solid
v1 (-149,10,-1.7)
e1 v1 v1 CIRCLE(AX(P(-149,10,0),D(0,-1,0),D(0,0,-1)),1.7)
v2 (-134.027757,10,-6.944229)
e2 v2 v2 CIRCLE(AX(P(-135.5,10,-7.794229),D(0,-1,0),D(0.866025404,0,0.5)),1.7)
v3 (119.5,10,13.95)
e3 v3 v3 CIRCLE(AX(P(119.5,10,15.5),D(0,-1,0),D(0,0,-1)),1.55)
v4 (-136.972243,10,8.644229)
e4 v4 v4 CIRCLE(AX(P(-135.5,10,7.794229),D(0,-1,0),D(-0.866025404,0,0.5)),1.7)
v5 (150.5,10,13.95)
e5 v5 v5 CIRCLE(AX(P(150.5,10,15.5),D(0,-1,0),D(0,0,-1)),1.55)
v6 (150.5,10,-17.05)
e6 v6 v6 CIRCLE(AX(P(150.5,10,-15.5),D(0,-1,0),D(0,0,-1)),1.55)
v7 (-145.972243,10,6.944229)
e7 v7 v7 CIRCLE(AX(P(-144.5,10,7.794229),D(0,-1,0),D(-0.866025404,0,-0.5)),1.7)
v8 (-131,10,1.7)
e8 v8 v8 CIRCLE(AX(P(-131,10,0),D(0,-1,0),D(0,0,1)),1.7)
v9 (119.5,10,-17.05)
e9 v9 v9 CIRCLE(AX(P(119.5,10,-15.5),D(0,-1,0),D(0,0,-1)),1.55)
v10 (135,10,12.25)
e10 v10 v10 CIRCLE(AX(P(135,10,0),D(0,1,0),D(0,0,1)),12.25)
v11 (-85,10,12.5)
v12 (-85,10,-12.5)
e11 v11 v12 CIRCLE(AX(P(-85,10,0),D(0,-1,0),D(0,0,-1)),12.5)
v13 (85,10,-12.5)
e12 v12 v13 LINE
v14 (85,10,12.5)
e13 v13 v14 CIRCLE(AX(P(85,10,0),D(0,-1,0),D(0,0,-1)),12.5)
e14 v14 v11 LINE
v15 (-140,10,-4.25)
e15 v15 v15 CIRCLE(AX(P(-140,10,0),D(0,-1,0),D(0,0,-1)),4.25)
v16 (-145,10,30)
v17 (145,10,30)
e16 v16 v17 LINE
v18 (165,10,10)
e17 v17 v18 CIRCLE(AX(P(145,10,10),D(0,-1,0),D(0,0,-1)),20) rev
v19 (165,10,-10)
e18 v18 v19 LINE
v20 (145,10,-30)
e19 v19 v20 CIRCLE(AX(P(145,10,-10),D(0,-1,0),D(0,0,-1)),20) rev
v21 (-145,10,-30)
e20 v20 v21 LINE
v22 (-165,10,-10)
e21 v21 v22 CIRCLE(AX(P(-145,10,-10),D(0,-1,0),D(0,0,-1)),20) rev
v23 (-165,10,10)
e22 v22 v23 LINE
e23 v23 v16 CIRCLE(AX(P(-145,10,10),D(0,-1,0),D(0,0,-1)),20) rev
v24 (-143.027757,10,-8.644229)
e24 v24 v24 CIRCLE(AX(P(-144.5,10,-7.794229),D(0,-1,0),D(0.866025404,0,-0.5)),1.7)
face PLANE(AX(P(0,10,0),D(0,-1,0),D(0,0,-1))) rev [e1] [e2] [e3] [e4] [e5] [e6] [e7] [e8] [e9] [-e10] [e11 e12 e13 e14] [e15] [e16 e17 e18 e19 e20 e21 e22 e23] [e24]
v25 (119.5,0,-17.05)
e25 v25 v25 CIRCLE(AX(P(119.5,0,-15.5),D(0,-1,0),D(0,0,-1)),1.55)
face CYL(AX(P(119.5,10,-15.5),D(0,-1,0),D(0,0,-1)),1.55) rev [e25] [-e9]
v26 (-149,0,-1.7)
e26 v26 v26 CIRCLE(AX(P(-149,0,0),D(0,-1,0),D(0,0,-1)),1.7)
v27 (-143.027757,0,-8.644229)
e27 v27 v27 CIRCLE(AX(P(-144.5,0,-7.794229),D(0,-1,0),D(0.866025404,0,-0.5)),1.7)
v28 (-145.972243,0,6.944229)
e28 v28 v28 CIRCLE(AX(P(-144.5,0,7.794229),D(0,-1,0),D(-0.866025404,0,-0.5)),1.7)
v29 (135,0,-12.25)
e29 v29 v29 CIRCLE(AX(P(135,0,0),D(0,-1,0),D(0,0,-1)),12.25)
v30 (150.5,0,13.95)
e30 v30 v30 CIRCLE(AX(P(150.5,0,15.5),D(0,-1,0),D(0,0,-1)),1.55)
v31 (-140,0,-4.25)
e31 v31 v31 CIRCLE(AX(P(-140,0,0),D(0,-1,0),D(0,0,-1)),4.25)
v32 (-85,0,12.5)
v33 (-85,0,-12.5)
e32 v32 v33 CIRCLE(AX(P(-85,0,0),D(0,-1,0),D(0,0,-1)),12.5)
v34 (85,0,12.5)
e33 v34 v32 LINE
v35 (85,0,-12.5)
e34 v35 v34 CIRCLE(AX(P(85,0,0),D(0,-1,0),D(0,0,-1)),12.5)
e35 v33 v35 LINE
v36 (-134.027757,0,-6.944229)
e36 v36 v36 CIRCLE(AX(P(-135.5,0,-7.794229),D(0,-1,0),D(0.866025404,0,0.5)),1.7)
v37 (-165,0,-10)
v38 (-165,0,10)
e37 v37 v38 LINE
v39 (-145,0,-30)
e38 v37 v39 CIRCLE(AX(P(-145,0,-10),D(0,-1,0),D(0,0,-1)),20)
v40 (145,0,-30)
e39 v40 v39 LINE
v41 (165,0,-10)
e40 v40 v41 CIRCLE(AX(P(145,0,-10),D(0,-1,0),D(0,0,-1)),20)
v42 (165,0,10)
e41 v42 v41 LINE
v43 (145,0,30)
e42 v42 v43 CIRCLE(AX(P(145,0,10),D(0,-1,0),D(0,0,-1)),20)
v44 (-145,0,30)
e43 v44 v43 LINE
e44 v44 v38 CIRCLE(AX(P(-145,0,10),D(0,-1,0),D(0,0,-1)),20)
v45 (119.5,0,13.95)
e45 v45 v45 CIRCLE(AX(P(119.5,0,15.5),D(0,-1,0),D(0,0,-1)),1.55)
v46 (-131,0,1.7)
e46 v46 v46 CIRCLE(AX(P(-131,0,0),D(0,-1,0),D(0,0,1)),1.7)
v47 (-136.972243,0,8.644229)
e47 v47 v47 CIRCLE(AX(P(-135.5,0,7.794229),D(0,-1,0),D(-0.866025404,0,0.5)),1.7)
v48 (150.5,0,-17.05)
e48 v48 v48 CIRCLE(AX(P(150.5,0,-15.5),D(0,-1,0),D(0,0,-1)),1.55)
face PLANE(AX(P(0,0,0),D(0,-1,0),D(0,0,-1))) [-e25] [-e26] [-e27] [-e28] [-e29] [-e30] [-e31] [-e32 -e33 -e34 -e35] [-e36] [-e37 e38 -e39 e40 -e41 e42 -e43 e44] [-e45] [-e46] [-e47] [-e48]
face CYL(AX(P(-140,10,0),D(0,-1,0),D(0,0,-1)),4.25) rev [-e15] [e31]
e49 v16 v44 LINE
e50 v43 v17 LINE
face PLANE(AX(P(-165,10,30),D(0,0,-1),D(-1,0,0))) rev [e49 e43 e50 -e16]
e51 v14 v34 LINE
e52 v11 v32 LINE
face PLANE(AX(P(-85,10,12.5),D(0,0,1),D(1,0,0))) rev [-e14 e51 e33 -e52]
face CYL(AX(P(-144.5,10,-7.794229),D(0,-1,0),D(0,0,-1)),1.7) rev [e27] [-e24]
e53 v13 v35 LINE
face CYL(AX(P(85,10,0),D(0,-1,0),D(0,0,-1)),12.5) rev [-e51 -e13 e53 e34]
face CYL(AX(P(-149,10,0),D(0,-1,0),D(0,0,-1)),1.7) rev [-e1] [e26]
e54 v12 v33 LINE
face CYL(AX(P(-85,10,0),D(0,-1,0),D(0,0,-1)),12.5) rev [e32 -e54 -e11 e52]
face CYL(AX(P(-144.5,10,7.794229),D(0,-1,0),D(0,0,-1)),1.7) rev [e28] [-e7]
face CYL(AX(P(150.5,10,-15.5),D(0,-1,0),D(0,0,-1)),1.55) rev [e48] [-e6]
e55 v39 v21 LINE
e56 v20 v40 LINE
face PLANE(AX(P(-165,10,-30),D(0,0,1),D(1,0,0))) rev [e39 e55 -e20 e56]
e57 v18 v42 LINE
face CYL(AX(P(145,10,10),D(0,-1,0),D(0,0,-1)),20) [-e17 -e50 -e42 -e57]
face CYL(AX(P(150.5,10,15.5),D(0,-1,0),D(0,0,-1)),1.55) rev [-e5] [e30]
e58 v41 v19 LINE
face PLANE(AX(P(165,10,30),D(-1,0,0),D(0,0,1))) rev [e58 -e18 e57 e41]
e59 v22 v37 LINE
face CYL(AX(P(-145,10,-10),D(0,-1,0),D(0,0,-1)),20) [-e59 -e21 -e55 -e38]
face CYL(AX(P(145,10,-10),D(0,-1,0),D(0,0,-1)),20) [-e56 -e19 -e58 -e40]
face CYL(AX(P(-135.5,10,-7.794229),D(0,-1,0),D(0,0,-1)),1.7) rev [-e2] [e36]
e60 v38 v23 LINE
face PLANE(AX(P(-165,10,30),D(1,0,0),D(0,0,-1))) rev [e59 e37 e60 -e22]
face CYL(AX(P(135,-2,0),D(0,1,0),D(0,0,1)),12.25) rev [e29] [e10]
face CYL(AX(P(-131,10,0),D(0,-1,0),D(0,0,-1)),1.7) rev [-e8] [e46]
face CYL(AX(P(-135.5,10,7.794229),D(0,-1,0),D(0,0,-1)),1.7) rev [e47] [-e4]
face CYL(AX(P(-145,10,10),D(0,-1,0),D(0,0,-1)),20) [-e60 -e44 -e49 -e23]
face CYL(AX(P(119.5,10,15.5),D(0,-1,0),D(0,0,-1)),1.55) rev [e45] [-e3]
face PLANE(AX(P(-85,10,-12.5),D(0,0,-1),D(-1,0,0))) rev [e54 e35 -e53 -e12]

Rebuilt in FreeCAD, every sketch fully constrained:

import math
import FreeCAD as App
import Part
import Sketcher
from FreeCAD import Vector
Q = App.Units.Quantity


def edges_at(feature, points):
    """Names of the edges that pass closest to the given points."""
    edges = feature.Shape.Edges
    near = lambda p: min(range(len(edges)), key=lambda i: edges[i].distToShape(Part.Vertex(*p))[0])
    return sorted({f"Edge{near(p) + 1}" for p in points})


def add_polygon(sketch, points):
    """Adds a closed chain of lines whose ends are joined by coincident constraints."""
    first, n = sketch.GeometryCount, len(points)
    for a, b in zip(points, points[1:] + points[:1]):
        sketch.addGeometry(Part.LineSegment(App.Vector(*a, 0), App.Vector(*b, 0)), False)
    for i in range(n):
        sketch.addConstraint(Sketcher.Constraint("Coincident", first + i, 2, first + (i + 1) % n, 1))

doc = App.newDocument("Part")
params = doc.addObject("Spreadsheet::Sheet", "Params")
for row, (alias, value) in enumerate([
    ("sketch1_width", "330 mm"),
    ("sketch1_height", "60 mm"),
    ("pad1_length", "10 mm"),
    ("fillet_radius", "20 mm"),
    ("sketch2_diameter", "24.5 mm"),
    ("pocket1_length", "12 mm"),
    ("sketch3_diameter", "3.1 mm"),
    ("sketch4_diameter", "8.5 mm"),
    ("sketch5_radius", "12.5 mm"),
    ("sketch5_width", "170 mm"),
    ("sketch6_diameter", "3.4 mm"),
], start=1):
    params.set(f"A{row}", alias)
    params.set(f"B{row}", "=" + value)
    params.setAlias(f"B{row}", alias)

body = doc.addObject("PartDesign::Body", "Body")

# Sketch on XZ plane
sketch1 = body.newObject("Sketcher::SketchObject", "Sketch")
sketch1.AttachmentSupport = (doc.getObject("XZ_Plane"), [""])
sketch1.MapMode = "FlatFace"
add_polygon(sketch1, [(-165, -30), (-165, 30), (165, 30), (165, -30)])  # lines 0-3
sketch1.addConstraint([
    Sketcher.Constraint("Vertical", 0),
    Sketcher.Constraint("Horizontal", 1),
    Sketcher.Constraint("Vertical", 2),
    Sketcher.Constraint("Horizontal", 3),
    Sketcher.Constraint("Symmetric", 0, 2, 2, 2, -1, 1),
    Sketcher.Constraint("DistanceX", 1, 1, 1, 2, Q("330 mm")),
    Sketcher.Constraint("DistanceY", 0, 1, 0, 2, Q("60 mm")),
])
sketch1.setExpression("Constraints[9]", "Params.sketch1_width")
sketch1.setExpression("Constraints[10]", "Params.sketch1_height")
pad1 = body.newObject("PartDesign::Pad", "Pad")
pad1.Profile = sketch1
pad1.setExpression("Length", "Params.pad1_length")
pad1.Reversed = True
doc.recompute()

fillet = body.newObject("PartDesign::Fillet", "Fillet")
fillet.Base = (pad1, edges_at(pad1, [
    (165, 5, 30),
    (-165, 5, 30),
    (-165, 5, -30),
    (165, 5, -30),
]))
fillet.setExpression("Radius", "Params.fillet_radius")

# Sketch on XZ plane
sketch2 = body.newObject("Sketcher::SketchObject", "Sketch001")
sketch2.AttachmentSupport = (doc.getObject("XZ_Plane"), [""])
sketch2.MapMode = "FlatFace"
sketch2.AttachmentOffset = App.Placement(Vector(0, 0, -10), App.Rotation())
sketch2.addGeometry(Part.Circle(Vector(135, 0, 0), Vector(0, 0, 1), 12), False)
sketch2.addConstraint([
    Sketcher.Constraint("PointOnObject", 0, 3, -1),
    Sketcher.Constraint("Diameter", 0, Q("24.5 mm")),
    Sketcher.Constraint("DistanceX", -1, 1, 0, 3, Q("135 mm")),
])
sketch2.setExpression("Constraints[1]", "Params.sketch2_diameter")
pocket1 = body.newObject("PartDesign::Pocket", "Pocket")
pocket1.Profile = sketch2
pocket1.setExpression("Length", "Params.pocket1_length")
pocket1.Reversed = True

# Sketch on XZ plane
sketch3 = body.newObject("Sketcher::SketchObject", "Sketch002")
sketch3.AttachmentSupport = (doc.getObject("XZ_Plane"), [""])
sketch3.MapMode = "FlatFace"
sketch3.addGeometry([
    Part.Circle(Vector(119.5, 15.5, 0), Vector(0, 0, 1), 1.6),
    Part.Circle(Vector(150.5, 15.5, 0), Vector(0, 0, 1), 1.6),
    Part.Circle(Vector(150.5, -15.5, 0), Vector(0, 0, 1), 1.6),
    Part.Circle(Vector(119.5, -15.5, 0), Vector(0, 0, 1), 1.6),
], False)
sketch3.addConstraint([
    Sketcher.Constraint("Equal", 0, 1),
    Sketcher.Constraint("Equal", 1, 2),
    Sketcher.Constraint("Equal", 2, 3),
    Sketcher.Constraint("Symmetric", 1, 3, 2, 3, -1),
    Sketcher.Constraint("Symmetric", 0, 3, 3, 3, -1),
    Sketcher.Constraint("Horizontal", 0, 3, 1, 3),
    Sketcher.Constraint("Diameter", 0, Q("3.1 mm")),
    Sketcher.Constraint("DistanceX", 0, 3, 1, 3, Q("31 mm")),
    Sketcher.Constraint("DistanceY", 2, 3, 1, 3, Q("31 mm")),
    Sketcher.Constraint("DistanceX", -1, 1, 0, 3, Q("119.5 mm")),
])
sketch3.setExpression("Constraints[6]", "Params.sketch3_diameter")
pocket2 = body.newObject("PartDesign::Pocket", "Pocket001")
pocket2.Profile = sketch3
pocket2.Type = "ThroughAll"

# Sketch on XZ plane
sketch4 = body.newObject("Sketcher::SketchObject", "Sketch003")
sketch4.AttachmentSupport = (doc.getObject("XZ_Plane"), [""])
sketch4.MapMode = "FlatFace"
sketch4.addGeometry(Part.Circle(Vector(-140, 0, 0), Vector(0, 0, 1), 4.2), False)
sketch4.addConstraint([
    Sketcher.Constraint("PointOnObject", 0, 3, -1),
    Sketcher.Constraint("Diameter", 0, Q("8.5 mm")),
    Sketcher.Constraint("DistanceX", 0, 3, -1, 1, Q("140 mm")),
])
sketch4.setExpression("Constraints[1]", "Params.sketch4_diameter")
pocket3 = body.newObject("PartDesign::Pocket", "Pocket002")
pocket3.Profile = sketch4
pocket3.Type = "ThroughAll"

# Sketch on XZ plane
sketch5 = body.newObject("Sketcher::SketchObject", "Sketch004")
sketch5.AttachmentSupport = (doc.getObject("XZ_Plane"), [""])
sketch5.MapMode = "FlatFace"
sketch5.addGeometry([
    Part.LineSegment(Vector(85, 12, 0), Vector(-85, 12, 0)),
    Part.ArcOfCircle(Part.Circle(Vector(-85, 0, 0), Vector(0, 0, 1), 12), math.radians(90), math.radians(270)),
    Part.LineSegment(Vector(-85, -12, 0), Vector(85, -12, 0)),
    Part.ArcOfCircle(Part.Circle(Vector(85, 0, 0), Vector(0, 0, 1), 12), math.radians(-90), math.radians(90)),
], False)
sketch5.addConstraint([
    Sketcher.Constraint("Tangent", 0, 2, 1, 1),
    Sketcher.Constraint("Tangent", 1, 2, 2, 1),
    Sketcher.Constraint("Tangent", 2, 2, 3, 1),
    Sketcher.Constraint("Tangent", 3, 2, 0, 1),
    Sketcher.Constraint("Horizontal", 0),
    Sketcher.Constraint("Horizontal", 2),
    Sketcher.Constraint("Symmetric", 1, 3, 3, 3, -1, 1),
    Sketcher.Constraint("Radius", 1, Q("12.5 mm")),
    Sketcher.Constraint("DistanceX", 0, 2, 0, 1, Q("170 mm")),
])
sketch5.setExpression("Constraints[7]", "Params.sketch5_radius")
sketch5.setExpression("Constraints[8]", "Params.sketch5_width")
pocket4 = body.newObject("PartDesign::Pocket", "Pocket003")
pocket4.Profile = sketch5
pocket4.Type = "ThroughAll"

# Sketch on XZ plane
sketch6 = body.newObject("Sketcher::SketchObject", "Sketch005")
sketch6.AttachmentSupport = (doc.getObject("XZ_Plane"), [""])
sketch6.MapMode = "FlatFace"
sketch6.addGeometry(Part.Circle(Vector(-149, 0, 0), Vector(0, 0, 1), 1.7), False)
sketch6.addConstraint([
    Sketcher.Constraint("PointOnObject", 0, 3, -1),
    Sketcher.Constraint("Diameter", 0, Q("3.4 mm")),
    Sketcher.Constraint("DistanceX", 0, 3, -1, 1, Q("149 mm")),
])
sketch6.setExpression("Constraints[1]", "Params.sketch6_diameter")
pocket5 = body.newObject("PartDesign::Pocket", "Pocket004")
pocket5.Profile = sketch6
pocket5.Type = "ThroughAll"
doc.recompute()

datumline = body.newObject("PartDesign::Line", "DatumLine")
datumline.Placement = App.Placement(Vector(-140, 0, 0), App.Rotation(Vector(0, 0, 1), Vector(0, 1, 0)))
polarpattern = body.newObject("PartDesign::PolarPattern", "PolarPattern")
polarpattern.Originals = [pocket5]
polarpattern.Axis = (datumline, [""])
polarpattern.Angle = 360
polarpattern.Occurrences = 6
body.Tip = polarpattern

doc.recompute()
